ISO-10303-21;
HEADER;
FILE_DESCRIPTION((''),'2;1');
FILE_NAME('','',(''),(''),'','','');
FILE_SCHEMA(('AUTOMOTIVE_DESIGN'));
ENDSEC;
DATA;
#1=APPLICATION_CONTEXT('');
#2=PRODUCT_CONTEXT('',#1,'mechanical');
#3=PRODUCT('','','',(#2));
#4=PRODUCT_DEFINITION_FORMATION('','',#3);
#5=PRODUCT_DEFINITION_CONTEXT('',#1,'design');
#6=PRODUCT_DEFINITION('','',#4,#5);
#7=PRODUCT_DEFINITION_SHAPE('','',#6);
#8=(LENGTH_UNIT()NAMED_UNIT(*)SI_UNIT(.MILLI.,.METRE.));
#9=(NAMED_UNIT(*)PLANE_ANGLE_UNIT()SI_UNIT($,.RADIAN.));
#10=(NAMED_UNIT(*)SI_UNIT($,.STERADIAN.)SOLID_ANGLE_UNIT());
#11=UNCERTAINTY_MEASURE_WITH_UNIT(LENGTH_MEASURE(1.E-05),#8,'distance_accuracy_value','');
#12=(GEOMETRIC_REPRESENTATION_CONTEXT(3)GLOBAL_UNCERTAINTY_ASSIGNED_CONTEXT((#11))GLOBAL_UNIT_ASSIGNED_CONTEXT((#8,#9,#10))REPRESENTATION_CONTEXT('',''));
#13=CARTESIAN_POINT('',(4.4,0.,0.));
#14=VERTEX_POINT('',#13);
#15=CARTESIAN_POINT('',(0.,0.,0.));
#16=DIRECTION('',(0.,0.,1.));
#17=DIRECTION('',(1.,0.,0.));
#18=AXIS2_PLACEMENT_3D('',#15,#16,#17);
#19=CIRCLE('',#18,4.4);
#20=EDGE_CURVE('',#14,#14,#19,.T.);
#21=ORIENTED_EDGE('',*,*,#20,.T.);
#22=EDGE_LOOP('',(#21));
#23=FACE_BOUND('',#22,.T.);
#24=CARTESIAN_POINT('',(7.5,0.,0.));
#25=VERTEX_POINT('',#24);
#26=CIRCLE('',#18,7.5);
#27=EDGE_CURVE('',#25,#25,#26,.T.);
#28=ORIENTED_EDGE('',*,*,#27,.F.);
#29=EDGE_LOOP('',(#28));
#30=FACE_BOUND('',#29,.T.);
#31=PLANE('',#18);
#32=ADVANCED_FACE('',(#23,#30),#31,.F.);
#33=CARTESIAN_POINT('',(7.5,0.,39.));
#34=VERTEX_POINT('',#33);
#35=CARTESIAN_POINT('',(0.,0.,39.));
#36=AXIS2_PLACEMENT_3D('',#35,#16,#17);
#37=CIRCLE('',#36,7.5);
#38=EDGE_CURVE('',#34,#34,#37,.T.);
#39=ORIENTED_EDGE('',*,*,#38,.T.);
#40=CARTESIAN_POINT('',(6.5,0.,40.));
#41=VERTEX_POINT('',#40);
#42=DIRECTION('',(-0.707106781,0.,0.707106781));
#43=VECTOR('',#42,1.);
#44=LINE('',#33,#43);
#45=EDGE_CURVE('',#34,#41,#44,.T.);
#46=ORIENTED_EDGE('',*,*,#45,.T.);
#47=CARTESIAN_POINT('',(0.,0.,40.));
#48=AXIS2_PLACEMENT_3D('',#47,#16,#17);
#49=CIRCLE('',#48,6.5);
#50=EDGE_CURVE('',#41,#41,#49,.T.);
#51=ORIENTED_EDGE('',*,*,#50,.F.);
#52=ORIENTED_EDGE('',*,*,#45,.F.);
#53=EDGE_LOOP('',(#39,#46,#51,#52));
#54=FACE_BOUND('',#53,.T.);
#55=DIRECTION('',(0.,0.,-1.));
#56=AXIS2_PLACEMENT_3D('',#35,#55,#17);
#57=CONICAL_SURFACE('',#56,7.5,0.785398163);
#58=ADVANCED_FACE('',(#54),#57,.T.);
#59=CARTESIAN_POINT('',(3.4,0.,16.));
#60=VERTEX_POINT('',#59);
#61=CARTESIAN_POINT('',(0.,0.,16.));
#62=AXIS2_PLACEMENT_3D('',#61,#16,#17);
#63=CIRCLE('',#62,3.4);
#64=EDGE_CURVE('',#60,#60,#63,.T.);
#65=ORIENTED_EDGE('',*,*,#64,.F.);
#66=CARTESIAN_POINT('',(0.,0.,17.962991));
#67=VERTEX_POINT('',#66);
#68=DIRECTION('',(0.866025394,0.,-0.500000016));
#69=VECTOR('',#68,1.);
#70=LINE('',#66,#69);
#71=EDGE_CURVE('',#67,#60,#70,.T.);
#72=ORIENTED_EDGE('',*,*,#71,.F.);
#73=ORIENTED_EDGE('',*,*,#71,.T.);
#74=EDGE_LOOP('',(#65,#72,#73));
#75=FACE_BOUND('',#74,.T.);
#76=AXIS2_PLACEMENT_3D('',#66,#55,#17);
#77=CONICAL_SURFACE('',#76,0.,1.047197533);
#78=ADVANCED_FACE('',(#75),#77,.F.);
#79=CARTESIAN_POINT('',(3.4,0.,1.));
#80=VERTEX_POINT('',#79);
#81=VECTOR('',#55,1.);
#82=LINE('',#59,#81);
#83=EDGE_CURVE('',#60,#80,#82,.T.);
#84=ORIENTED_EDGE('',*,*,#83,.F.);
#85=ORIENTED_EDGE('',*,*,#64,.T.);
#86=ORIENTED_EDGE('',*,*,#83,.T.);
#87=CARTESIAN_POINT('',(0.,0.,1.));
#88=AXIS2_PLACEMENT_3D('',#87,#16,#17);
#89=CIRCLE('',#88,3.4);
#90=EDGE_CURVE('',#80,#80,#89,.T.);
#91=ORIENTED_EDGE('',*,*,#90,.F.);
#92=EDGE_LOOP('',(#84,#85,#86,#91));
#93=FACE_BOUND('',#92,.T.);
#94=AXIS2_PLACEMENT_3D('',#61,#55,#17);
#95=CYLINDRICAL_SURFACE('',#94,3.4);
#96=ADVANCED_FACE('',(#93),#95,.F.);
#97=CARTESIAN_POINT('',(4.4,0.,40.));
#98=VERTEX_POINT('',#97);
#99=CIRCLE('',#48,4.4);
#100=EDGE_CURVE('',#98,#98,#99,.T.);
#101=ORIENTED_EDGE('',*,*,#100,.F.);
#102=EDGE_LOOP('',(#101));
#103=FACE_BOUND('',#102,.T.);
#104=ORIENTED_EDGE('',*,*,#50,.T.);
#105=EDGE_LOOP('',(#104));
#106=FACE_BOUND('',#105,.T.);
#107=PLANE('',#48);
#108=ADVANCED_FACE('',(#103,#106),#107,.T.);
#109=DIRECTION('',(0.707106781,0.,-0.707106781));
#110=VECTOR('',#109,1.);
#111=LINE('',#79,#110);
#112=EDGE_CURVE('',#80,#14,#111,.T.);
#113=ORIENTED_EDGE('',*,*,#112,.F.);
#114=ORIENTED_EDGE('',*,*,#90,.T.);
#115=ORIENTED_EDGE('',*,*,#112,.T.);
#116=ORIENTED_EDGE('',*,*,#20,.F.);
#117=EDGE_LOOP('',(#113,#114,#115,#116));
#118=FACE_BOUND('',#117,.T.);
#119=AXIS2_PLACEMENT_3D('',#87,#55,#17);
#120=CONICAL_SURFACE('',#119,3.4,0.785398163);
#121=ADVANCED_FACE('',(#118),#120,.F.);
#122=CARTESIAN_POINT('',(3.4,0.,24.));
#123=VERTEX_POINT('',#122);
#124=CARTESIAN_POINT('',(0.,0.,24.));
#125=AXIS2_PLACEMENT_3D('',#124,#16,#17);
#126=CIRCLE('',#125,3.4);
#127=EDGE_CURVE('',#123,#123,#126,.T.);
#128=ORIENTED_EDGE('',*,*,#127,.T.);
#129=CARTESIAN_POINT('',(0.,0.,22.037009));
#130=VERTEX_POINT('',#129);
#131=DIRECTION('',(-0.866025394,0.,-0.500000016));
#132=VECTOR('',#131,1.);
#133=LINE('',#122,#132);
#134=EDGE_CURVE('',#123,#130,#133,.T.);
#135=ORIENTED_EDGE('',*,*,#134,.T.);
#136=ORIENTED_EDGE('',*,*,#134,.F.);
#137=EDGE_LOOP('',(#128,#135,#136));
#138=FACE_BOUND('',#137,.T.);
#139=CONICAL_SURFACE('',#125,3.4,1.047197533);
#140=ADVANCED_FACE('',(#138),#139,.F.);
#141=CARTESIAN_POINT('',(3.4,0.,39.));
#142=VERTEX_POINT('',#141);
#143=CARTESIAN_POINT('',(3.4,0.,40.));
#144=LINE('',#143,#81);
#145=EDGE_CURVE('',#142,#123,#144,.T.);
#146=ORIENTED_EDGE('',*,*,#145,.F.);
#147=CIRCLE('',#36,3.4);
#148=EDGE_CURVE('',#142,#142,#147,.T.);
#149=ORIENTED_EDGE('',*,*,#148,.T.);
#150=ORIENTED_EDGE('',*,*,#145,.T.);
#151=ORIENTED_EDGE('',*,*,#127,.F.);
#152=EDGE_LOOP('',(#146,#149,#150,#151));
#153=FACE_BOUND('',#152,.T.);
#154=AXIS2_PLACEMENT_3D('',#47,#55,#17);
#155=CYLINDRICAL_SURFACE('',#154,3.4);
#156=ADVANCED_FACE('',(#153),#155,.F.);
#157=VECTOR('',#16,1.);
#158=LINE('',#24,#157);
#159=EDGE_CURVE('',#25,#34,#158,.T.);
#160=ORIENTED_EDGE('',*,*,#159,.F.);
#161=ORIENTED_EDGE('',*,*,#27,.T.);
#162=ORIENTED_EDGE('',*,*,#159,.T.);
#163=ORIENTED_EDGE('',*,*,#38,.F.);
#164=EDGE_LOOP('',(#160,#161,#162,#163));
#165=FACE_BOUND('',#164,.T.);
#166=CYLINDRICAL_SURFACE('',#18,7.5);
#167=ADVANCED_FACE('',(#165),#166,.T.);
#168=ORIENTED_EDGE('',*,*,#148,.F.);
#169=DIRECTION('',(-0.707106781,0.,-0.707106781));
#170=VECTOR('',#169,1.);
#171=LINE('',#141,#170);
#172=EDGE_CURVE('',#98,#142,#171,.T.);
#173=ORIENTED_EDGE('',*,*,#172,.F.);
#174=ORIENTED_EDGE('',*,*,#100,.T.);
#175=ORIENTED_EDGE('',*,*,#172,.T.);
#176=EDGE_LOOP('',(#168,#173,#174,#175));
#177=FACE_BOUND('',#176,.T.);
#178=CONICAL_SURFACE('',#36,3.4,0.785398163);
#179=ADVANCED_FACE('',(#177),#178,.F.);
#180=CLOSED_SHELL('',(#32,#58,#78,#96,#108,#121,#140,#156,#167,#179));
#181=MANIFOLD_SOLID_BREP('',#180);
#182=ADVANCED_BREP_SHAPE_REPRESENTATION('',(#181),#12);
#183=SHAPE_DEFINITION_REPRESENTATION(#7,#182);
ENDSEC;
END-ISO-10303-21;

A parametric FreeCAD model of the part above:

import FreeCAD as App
import Part
import Sketcher

V = App.Vector
Q = App.Units.Quantity


def edges_at(feature, points):
    """Names of the edges that pass closest to the given points."""
    edges = feature.Shape.Edges
    near = lambda p: min(range(len(edges)), key=lambda i: edges[i].distToShape(Part.Vertex(*p))[0])
    return sorted({f"Edge{near(p) + 1}" for p in points})


def add_polygon(sketch, points):
    """Adds a closed chain of lines whose ends are joined by coincident constraints."""
    first, n = sketch.GeometryCount, len(points)
    for a, b in zip(points, points[1:] + points[:1]):
        sketch.addGeometry(Part.LineSegment(App.Vector(*a, 0), App.Vector(*b, 0)), False)
    for i in range(n):
        sketch.addConstraint(Sketcher.Constraint("Coincident", first + i, 2, first + (i + 1) % n, 1))

doc = App.newDocument("Part")
body = doc.addObject("PartDesign::Body", "Body")

sketch1 = body.newObject("Sketcher::SketchObject", "Sketch")
sketch1.AttachmentSupport = (doc.getObject("XZ_Plane"), [""])
sketch1.MapMode = "FlatFace"
add_polygon(sketch1, [(0, 22), (0, 18), (3.4, 16), (3.4, 0), (7.5, 0), (7.5, 40), (3.4, 40), (3.4, 24)])
sketch1.addConstraint([
    Sketcher.Constraint("Vertical", 0),
    Sketcher.Constraint("Vertical", 2),
    Sketcher.Constraint("Horizontal", 3),
    Sketcher.Constraint("Vertical", 4),
    Sketcher.Constraint("Horizontal", 5),
    Sketcher.Constraint("Vertical", 6),
    Sketcher.Constraint("PointOnObject", 0, 2, -2),
    Sketcher.Constraint("PointOnObject", 2, 2, -1),
    Sketcher.Constraint("Vertical", 2, 2, 5, 2),
    Sketcher.Constraint("Equal", 2, 6),
    Sketcher.Constraint("Equal", 1, 7),
    Sketcher.Constraint("DistanceY", 2, 2, 2, 1, 16.0),
    Sketcher.Constraint("DistanceY", 4, 1, 4, 2, 40.0),
    Sketcher.Constraint("Angle", 1, Q("-30.000001 deg")),
    Sketcher.Constraint("DistanceX", 3, 1, 3, 2, 4.1),
    Sketcher.Constraint("DistanceX", -1, 1, 1, 2, 3.4),
])
revolution = body.newObject("PartDesign::Revolution", "Revolution")
revolution.Profile = sketch1
revolution.ReferenceAxis = (sketch1, ["V_Axis"])
revolution.Angle = 360
doc.recompute()

chamfer = body.newObject("PartDesign::Chamfer", "Chamfer")
chamfer.Base = (revolution, edges_at(revolution, [(-7.5, 0, 40), (-3.4, 0, 40), (-3.4, 0, 0)]))
chamfer.Size = 1

doc.recompute()
